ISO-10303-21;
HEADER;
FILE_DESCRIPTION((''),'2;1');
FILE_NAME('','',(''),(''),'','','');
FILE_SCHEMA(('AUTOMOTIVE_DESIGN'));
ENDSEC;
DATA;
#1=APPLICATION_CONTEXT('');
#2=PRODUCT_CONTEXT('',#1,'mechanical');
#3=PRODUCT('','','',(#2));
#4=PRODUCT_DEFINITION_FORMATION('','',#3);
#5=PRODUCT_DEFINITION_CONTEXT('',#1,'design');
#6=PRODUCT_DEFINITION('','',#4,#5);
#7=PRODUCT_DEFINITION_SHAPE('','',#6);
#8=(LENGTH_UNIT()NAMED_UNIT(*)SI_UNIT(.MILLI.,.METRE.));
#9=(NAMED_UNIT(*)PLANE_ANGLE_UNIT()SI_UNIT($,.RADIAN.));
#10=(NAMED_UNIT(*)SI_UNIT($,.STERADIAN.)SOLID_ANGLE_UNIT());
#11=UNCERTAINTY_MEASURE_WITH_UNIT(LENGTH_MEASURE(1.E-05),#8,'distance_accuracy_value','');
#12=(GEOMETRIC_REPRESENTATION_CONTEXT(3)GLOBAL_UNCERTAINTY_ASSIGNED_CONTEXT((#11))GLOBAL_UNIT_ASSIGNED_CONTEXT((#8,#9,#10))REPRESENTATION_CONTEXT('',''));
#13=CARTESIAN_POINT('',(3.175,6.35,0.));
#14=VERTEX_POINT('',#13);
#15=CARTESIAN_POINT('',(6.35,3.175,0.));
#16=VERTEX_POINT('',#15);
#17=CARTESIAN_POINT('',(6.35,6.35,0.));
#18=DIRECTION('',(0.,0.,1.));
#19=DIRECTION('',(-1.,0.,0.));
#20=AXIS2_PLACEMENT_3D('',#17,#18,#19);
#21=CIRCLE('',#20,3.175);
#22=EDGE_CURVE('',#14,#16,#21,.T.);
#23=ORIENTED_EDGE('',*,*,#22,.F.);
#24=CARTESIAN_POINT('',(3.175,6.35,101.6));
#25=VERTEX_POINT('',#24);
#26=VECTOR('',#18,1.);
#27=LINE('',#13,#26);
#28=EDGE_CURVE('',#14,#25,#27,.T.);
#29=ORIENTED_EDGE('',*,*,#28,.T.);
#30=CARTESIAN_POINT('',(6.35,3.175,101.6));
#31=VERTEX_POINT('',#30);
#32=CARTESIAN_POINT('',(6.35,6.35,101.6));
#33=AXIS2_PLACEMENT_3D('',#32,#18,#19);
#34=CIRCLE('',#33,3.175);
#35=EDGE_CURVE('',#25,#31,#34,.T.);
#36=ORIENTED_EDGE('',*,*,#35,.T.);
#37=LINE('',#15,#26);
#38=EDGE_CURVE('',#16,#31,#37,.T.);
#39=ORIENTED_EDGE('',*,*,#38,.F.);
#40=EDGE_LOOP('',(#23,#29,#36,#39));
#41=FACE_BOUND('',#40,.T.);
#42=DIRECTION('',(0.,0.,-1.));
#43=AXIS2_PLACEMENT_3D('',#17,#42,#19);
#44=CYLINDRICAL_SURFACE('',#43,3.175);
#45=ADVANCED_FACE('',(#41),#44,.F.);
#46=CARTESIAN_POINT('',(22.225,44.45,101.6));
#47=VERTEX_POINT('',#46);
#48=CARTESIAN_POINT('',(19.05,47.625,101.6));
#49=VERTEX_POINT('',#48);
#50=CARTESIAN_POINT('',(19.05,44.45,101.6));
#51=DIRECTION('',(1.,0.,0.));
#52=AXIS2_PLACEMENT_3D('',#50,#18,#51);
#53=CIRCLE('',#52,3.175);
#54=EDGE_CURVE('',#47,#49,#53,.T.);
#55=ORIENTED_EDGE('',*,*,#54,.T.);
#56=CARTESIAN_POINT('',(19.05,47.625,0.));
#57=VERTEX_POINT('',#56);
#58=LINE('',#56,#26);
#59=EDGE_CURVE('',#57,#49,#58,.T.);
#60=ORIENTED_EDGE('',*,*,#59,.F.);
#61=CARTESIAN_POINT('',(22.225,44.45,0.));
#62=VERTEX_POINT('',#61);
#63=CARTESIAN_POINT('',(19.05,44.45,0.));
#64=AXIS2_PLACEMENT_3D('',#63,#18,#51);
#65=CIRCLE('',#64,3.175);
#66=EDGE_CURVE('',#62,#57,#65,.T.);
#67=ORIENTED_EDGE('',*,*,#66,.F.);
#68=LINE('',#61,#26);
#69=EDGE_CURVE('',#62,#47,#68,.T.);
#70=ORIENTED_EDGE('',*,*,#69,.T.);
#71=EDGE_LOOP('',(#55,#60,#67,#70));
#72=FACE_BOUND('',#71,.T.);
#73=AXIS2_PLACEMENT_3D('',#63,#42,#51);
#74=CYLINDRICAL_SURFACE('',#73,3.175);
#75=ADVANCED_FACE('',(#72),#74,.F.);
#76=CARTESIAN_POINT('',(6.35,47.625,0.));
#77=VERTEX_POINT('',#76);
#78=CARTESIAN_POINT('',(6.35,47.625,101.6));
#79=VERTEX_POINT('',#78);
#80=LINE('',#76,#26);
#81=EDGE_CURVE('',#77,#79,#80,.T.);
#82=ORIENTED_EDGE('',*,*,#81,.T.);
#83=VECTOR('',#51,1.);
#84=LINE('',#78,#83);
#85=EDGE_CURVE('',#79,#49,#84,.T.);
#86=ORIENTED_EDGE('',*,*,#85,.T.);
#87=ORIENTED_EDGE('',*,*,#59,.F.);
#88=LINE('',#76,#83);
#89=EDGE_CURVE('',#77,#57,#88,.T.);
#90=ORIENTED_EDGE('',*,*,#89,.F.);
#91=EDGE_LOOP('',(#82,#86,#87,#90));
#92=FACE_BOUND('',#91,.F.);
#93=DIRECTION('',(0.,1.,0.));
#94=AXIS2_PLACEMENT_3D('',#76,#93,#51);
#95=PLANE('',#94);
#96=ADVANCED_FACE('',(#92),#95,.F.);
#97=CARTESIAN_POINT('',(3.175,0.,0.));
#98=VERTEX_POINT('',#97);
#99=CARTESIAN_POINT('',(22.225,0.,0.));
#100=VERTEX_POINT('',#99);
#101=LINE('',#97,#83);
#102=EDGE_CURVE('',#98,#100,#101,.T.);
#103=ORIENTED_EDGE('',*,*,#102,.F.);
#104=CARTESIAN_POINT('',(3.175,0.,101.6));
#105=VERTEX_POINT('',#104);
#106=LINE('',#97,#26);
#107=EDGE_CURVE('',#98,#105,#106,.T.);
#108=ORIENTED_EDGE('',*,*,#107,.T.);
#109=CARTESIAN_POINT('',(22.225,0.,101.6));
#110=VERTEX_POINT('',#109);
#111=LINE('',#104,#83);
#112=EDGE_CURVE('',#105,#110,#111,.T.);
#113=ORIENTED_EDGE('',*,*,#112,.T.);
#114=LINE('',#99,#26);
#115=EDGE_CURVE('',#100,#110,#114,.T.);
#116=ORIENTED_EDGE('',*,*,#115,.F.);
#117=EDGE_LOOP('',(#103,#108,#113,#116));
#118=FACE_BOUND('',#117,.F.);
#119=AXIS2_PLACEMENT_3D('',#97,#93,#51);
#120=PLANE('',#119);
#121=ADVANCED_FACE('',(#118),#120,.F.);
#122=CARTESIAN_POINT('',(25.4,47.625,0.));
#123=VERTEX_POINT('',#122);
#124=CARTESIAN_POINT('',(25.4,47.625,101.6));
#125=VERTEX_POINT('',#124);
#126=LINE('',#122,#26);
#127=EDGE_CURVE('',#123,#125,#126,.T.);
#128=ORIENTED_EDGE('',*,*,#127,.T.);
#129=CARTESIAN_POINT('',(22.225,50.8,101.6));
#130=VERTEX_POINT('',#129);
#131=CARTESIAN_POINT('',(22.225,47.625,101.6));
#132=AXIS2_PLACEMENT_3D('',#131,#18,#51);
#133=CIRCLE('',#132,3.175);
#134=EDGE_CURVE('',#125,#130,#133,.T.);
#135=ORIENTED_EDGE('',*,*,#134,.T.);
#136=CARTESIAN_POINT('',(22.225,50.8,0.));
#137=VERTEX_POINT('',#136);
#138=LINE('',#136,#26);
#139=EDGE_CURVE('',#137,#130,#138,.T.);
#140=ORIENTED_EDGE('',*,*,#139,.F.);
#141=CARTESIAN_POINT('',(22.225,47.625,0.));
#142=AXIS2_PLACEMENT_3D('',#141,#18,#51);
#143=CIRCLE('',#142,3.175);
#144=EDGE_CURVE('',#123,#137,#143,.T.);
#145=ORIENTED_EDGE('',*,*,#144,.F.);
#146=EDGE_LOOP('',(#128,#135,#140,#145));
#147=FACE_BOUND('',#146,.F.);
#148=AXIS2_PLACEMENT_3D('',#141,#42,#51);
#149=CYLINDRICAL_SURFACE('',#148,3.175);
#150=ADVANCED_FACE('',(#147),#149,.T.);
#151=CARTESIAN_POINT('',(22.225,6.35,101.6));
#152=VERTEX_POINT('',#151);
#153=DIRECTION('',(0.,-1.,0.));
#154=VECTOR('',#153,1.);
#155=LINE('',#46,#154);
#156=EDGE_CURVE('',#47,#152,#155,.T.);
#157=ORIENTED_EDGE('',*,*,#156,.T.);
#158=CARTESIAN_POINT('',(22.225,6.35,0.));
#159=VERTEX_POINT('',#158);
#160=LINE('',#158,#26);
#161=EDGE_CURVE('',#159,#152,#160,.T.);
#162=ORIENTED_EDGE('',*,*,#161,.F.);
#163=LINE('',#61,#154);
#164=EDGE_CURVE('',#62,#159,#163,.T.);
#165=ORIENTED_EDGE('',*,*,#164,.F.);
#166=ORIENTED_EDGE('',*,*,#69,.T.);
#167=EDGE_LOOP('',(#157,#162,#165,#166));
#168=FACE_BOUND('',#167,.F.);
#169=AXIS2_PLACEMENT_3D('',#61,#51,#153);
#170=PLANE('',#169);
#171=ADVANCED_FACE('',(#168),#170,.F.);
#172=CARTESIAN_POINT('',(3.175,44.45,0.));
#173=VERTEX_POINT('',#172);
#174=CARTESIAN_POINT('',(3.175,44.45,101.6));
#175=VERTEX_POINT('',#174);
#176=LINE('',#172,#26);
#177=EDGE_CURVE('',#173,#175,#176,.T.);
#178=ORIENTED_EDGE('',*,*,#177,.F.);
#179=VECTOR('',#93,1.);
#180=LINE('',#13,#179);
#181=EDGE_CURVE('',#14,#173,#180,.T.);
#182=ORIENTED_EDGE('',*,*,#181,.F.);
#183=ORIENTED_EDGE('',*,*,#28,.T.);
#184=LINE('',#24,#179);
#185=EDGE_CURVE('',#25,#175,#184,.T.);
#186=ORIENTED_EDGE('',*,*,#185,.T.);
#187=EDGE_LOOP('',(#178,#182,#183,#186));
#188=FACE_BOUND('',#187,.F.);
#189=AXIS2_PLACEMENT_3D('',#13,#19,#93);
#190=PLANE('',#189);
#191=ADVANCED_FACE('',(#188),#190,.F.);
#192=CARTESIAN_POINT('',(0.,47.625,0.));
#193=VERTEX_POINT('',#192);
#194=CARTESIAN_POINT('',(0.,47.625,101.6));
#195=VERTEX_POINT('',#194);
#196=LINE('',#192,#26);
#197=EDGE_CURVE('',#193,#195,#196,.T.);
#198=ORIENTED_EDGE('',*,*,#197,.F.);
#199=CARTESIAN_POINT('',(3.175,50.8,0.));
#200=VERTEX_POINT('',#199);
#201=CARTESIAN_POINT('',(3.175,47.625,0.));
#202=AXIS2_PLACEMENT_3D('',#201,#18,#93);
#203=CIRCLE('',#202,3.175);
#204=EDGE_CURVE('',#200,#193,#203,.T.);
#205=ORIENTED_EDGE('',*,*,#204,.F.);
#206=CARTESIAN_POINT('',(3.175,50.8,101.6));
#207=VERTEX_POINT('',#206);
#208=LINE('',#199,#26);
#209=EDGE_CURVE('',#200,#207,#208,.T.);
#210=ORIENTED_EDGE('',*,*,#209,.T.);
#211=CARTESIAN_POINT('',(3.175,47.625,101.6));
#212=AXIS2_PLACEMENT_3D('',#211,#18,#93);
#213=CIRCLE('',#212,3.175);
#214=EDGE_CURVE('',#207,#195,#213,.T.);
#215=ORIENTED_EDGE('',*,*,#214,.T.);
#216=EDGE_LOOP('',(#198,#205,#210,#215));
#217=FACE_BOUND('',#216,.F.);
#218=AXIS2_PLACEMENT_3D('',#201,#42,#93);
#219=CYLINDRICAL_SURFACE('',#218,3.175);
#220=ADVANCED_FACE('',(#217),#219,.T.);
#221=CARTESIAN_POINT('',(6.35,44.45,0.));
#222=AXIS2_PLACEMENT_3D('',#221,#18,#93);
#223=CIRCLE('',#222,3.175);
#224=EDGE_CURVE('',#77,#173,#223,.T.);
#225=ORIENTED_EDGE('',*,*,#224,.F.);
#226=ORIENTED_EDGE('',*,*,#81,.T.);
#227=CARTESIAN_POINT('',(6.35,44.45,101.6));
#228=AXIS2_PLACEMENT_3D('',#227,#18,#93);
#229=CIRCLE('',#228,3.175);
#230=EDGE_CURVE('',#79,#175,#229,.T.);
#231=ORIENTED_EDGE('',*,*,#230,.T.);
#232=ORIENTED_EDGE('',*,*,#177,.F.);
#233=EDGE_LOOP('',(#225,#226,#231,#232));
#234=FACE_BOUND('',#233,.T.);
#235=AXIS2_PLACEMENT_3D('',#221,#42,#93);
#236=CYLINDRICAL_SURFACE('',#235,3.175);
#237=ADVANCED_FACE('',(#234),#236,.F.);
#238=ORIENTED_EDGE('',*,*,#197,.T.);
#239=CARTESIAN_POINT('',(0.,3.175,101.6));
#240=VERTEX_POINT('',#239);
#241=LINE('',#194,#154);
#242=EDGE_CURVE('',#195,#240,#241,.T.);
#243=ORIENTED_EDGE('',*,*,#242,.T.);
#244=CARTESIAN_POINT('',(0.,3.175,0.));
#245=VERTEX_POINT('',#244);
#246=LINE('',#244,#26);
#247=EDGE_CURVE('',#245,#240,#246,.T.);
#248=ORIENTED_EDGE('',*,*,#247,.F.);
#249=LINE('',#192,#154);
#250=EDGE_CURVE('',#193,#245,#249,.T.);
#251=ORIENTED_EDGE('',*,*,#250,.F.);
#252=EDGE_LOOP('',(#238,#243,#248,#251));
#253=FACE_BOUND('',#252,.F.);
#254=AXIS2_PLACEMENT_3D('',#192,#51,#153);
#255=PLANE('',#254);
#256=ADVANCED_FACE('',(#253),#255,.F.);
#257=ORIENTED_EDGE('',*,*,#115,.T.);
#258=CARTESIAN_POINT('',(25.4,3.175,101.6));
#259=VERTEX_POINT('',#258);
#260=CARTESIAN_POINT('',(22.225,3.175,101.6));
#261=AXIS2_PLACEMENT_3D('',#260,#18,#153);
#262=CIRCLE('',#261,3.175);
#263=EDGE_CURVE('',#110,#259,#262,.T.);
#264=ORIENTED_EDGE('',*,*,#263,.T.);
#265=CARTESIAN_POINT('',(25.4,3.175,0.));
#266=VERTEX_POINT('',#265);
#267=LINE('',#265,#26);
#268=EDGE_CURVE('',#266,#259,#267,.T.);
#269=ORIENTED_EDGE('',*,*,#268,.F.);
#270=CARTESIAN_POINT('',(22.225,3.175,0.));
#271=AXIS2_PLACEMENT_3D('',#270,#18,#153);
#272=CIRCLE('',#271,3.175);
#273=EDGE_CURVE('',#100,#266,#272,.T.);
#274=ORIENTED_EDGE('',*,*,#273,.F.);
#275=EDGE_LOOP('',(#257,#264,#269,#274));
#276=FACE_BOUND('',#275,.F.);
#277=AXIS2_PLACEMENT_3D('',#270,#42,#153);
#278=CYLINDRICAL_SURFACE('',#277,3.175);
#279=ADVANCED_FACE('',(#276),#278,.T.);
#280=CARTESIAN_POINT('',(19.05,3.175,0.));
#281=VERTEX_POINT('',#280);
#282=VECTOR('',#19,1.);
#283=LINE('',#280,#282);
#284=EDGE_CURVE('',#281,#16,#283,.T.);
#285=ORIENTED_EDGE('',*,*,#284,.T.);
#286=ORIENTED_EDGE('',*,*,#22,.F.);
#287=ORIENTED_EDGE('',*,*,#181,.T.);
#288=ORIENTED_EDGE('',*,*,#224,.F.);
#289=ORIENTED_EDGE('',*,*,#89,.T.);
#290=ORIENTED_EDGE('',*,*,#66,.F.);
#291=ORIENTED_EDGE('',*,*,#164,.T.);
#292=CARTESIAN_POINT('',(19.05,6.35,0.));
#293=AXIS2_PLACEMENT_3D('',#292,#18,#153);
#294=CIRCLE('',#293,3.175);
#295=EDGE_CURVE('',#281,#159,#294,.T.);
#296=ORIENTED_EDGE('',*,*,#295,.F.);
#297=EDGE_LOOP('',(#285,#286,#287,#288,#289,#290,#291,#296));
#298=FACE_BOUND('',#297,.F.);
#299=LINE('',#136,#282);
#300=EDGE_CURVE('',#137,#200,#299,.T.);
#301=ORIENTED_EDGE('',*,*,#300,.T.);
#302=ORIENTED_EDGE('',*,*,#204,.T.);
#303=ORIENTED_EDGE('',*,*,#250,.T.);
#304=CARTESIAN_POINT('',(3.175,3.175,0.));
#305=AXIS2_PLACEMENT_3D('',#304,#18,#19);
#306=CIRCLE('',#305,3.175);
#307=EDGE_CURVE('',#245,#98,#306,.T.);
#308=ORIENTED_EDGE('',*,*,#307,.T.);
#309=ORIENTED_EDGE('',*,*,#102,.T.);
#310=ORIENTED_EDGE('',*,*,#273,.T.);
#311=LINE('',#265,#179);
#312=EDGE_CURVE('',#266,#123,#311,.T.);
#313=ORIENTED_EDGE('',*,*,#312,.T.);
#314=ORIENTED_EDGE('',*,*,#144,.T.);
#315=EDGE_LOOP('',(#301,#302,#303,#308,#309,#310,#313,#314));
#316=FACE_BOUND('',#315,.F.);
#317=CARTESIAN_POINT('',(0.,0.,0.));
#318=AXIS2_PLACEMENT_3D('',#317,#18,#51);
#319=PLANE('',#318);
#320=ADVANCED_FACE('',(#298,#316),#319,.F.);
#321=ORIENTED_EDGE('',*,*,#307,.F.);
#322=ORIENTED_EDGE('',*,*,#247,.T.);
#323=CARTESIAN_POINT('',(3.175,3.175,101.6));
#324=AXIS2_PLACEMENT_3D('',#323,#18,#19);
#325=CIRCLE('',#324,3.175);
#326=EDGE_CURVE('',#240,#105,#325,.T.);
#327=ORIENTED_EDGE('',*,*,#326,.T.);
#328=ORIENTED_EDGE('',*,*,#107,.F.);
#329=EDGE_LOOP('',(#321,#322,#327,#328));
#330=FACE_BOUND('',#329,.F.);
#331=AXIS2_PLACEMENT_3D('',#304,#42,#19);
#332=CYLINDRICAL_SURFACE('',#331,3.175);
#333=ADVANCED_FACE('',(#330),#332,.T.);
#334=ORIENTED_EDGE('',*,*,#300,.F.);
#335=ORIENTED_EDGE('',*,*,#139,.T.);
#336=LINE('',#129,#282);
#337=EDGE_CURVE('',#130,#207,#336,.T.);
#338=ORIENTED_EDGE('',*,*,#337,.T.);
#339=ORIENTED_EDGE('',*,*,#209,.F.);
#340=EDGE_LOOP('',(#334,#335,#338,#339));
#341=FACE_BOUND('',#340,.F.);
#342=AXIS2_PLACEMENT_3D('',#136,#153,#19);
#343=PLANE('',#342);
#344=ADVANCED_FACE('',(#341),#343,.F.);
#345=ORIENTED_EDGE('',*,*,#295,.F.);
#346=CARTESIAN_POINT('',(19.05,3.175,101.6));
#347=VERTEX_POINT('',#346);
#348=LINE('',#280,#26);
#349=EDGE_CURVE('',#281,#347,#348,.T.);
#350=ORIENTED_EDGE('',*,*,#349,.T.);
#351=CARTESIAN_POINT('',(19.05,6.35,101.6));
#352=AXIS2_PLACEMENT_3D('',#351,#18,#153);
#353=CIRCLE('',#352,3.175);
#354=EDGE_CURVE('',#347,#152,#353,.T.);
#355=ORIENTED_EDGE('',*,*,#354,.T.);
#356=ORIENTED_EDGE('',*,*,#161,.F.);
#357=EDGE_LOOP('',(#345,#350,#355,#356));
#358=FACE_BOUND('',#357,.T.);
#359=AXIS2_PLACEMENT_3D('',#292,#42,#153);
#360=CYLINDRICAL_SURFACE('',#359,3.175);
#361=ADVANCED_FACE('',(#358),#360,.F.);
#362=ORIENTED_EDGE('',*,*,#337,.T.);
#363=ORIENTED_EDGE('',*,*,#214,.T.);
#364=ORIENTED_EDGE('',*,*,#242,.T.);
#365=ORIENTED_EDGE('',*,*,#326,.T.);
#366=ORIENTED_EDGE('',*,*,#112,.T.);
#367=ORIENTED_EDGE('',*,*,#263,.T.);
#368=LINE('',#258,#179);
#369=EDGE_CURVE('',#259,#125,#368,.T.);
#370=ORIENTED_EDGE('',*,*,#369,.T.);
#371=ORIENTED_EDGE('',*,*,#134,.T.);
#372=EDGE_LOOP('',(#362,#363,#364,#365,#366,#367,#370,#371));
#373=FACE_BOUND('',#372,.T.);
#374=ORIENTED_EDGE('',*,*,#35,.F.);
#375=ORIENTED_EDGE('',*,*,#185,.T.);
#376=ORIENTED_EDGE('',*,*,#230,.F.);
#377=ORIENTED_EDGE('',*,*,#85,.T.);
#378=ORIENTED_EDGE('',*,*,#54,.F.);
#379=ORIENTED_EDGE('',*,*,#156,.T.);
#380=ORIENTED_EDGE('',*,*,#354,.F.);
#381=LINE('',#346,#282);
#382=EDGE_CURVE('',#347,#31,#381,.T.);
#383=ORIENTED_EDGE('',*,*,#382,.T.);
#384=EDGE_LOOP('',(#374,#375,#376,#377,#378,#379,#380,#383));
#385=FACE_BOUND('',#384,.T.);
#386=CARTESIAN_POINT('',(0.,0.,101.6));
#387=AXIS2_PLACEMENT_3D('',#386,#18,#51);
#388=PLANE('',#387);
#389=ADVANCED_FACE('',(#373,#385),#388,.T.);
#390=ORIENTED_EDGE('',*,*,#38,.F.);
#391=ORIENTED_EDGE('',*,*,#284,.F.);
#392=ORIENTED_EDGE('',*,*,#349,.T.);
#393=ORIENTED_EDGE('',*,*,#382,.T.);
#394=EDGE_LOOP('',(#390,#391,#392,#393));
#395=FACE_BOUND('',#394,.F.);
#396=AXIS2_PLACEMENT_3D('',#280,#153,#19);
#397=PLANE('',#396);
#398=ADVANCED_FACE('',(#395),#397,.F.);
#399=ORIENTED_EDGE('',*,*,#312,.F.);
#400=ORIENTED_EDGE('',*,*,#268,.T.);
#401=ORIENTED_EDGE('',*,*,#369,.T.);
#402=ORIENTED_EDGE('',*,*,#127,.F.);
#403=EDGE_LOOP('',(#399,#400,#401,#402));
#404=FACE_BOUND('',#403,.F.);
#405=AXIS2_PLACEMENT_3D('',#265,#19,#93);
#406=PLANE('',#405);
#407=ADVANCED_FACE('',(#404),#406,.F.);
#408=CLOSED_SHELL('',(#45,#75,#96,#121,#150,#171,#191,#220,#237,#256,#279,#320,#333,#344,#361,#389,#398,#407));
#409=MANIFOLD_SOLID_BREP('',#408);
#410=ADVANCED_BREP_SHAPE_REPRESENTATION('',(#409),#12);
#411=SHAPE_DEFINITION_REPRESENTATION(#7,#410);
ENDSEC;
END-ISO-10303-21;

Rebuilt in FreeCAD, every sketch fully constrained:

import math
import FreeCAD as App
import Part
import Sketcher
Q = App.Units.Quantity

doc = App.newDocument("Part")
body = doc.addObject("PartDesign::Body", "Body")

# Sketch on XY plane
sketch1 = body.newObject("Sketcher::SketchObject", "Sketch")
sketch1.AttachmentSupport = (doc.getObject("XY_Plane"), [""])
sketch1.MapMode = "FlatFace"
sketch1.addGeometry([
    Part.ArcOfCircle(Part.Circle(App.Vector(3.175, 3.175, 0), App.Vector(0, 0, 1), 3.175), math.radians(180), math.radians(270)),  # 0
    Part.LineSegment(App.Vector(3.175, 0, 0), App.Vector(22.225, 0, 0)),  # 1
    Part.ArcOfCircle(Part.Circle(App.Vector(22.225, 3.175, 0), App.Vector(0, 0, 1), 3.175), math.radians(-90), math.radians(0)),  # 2
    Part.LineSegment(App.Vector(25.4, 3.175, 0), App.Vector(25.4, 47.625, 0)),  # 3
    Part.ArcOfCircle(Part.Circle(App.Vector(22.225, 47.625, 0), App.Vector(0, 0, 1), 3.175), math.radians(0), math.radians(90)),  # 4
    Part.LineSegment(App.Vector(22.225, 50.8, 0), App.Vector(3.175, 50.8, 0)),  # 5
    Part.ArcOfCircle(Part.Circle(App.Vector(3.175, 47.625, 0), App.Vector(0, 0, 1), 3.175), math.radians(90), math.radians(180)),  # 6
    Part.LineSegment(App.Vector(0, 47.625, 0), App.Vector(0, 3.175, 0)),  # 7
    Part.ArcOfCircle(Part.Circle(App.Vector(6.35, 44.45, 0), App.Vector(0, 0, 1), 3.175), math.radians(90), math.radians(180)),  # 8
    Part.LineSegment(App.Vector(6.35, 47.625, 0), App.Vector(19.05, 47.625, 0)),  # 9
    Part.ArcOfCircle(Part.Circle(App.Vector(19.05, 44.45, 0), App.Vector(0, 0, 1), 3.175), math.radians(0), math.radians(90)),  # 10
    Part.LineSegment(App.Vector(22.225, 44.45, 0), App.Vector(22.225, 6.35, 0)),  # 11
    Part.ArcOfCircle(Part.Circle(App.Vector(19.05, 6.35, 0), App.Vector(0, 0, 1), 3.175), math.radians(-90), math.radians(0)),  # 12
    Part.LineSegment(App.Vector(19.05, 3.175, 0), App.Vector(6.35, 3.175, 0)),  # 13
    Part.ArcOfCircle(Part.Circle(App.Vector(6.35, 6.35, 0), App.Vector(0, 0, 1), 3.175), math.radians(180), math.radians(270)),  # 14
    Part.LineSegment(App.Vector(3.175, 6.35, 0), App.Vector(3.175, 44.45, 0)),  # 15
], False)
sketch1.addConstraint([
    Sketcher.Constraint("Tangent", 0, 2, 1, 1),
    Sketcher.Constraint("Tangent", 1, 2, 2, 1),
    Sketcher.Constraint("Tangent", 2, 2, 3, 1),
    Sketcher.Constraint("Tangent", 3, 2, 4, 1),
    Sketcher.Constraint("Tangent", 4, 2, 5, 1),
    Sketcher.Constraint("Tangent", 5, 2, 6, 1),
    Sketcher.Constraint("Tangent", 6, 2, 7, 1),
    Sketcher.Constraint("Tangent", 7, 2, 0, 1),
    Sketcher.Constraint("Tangent", 8, 1, 9, 1),
    Sketcher.Constraint("Tangent", 9, 2, 10, 2),
    Sketcher.Constraint("Tangent", 10, 1, 11, 1),
    Sketcher.Constraint("Tangent", 11, 2, 12, 2),
    Sketcher.Constraint("Tangent", 12, 1, 13, 1),
    Sketcher.Constraint("Tangent", 13, 2, 14, 2),
    Sketcher.Constraint("Tangent", 14, 1, 15, 1),
    Sketcher.Constraint("Tangent", 15, 2, 8, 2),
    Sketcher.Constraint("Horizontal", 1),
    Sketcher.Constraint("Vertical", 3),
    Sketcher.Constraint("Horizontal", 5),
    Sketcher.Constraint("Vertical", 7),
    Sketcher.Constraint("Horizontal", 9),
    Sketcher.Constraint("Vertical", 11),
    Sketcher.Constraint("Horizontal", 13),
    Sketcher.Constraint("Vertical", 15),
    Sketcher.Constraint("Equal", 0, 2),
    Sketcher.Constraint("Equal", 2, 4),
    Sketcher.Constraint("Equal", 4, 6),
    Sketcher.Constraint("Equal", 6, 8),
    Sketcher.Constraint("Equal", 8, 10),
    Sketcher.Constraint("Equal", 10, 12),
    Sketcher.Constraint("Equal", 12, 14),
    Sketcher.Constraint("PointOnObject", 0, 2, -1),
    Sketcher.Constraint("PointOnObject", 6, 2, -2),
    Sketcher.Constraint("Horizontal", 6, 2, 8, 1),
    Sketcher.Constraint("Horizontal", 7, 2, 12, 1),
    Sketcher.Constraint("Vertical", 4, 2, 10, 1),
    Sketcher.Constraint("Vertical", 5, 2, 14, 1),
    Sketcher.Constraint("DistanceX", -1, 1, 2, 2, Q("1 in")),
    Sketcher.Constraint("DistanceY", -1, 1, 4, 2, Q("2 in")),
    Sketcher.Constraint("Radius", 0, Q("0.125 in")),
])
pad1 = body.newObject("PartDesign::Pad", "Pad")
pad1.Profile = sketch1
pad1.Length = Q("4 in")

doc.recompute()
